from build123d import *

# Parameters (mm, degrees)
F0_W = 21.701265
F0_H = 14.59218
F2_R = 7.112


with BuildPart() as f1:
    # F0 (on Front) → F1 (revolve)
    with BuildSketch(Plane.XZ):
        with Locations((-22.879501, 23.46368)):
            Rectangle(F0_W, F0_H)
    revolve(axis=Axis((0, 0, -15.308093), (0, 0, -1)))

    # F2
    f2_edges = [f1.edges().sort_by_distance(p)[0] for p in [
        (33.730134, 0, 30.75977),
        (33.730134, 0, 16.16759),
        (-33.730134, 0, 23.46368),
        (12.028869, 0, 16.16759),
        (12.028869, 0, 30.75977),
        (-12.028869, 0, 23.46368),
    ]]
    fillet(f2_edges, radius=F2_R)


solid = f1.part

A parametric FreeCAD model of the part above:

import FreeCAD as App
import Part
import Sketcher
Q = App.Units.Quantity


def add_polygon(sketch, points):
    """Adds a closed chain of lines whose ends are joined by coincident constraints."""
    first, n = sketch.GeometryCount, len(points)
    for a, b in zip(points, points[1:] + points[:1]):
        sketch.addGeometry(Part.LineSegment(App.Vector(*a, 0), App.Vector(*b, 0)), False)
    for i in range(n):
        sketch.addConstraint(Sketcher.Constraint("Coincident", first + i, 2, first + (i + 1) % n, 1))

doc = App.newDocument("Part")
body = doc.addObject("PartDesign::Body", "Body")

# Sketch on XZ plane
sketch1 = body.newObject("Sketcher::SketchObject", "Sketch")
sketch1.AttachmentSupport = (doc.getObject("XZ_Plane"), [""])
sketch1.MapMode = "FlatFace"
add_polygon(sketch1, [(-34, 31), (-34, 16), (-12, 16), (-12, 31)])  # lines 0-3
sketch1.addConstraint([
    Sketcher.Constraint("Vertical", 0),
    Sketcher.Constraint("Horizontal", 1),
    Sketcher.Constraint("Vertical", 2),
    Sketcher.Constraint("Horizontal", 3),
    Sketcher.Constraint("DistanceY", 0, 2, 0, 1, Q("14.59218 mm")),
    Sketcher.Constraint("DistanceX", 1, 1, 1, 2, Q("21.701265 mm")),
    Sketcher.Constraint("DistanceY", -1, 1, 0, 2, Q("16.16759 mm")),
    Sketcher.Constraint("DistanceX", 1, 2, -1, 1, Q("12.028868 mm")),
])
revolution = body.newObject("PartDesign::Revolution", "Revolution")
revolution.Profile = sketch1
revolution.ReferenceAxis = (sketch1, ["V_Axis"])
revolution.Angle = 360
doc.recompute()

fillet = body.newObject("PartDesign::Fillet", "Fillet")
fillet.Base = (revolution, ["Edge1"])
fillet.UseAllEdges = True
fillet.Radius = Q("0.28 in")

doc.recompute()
